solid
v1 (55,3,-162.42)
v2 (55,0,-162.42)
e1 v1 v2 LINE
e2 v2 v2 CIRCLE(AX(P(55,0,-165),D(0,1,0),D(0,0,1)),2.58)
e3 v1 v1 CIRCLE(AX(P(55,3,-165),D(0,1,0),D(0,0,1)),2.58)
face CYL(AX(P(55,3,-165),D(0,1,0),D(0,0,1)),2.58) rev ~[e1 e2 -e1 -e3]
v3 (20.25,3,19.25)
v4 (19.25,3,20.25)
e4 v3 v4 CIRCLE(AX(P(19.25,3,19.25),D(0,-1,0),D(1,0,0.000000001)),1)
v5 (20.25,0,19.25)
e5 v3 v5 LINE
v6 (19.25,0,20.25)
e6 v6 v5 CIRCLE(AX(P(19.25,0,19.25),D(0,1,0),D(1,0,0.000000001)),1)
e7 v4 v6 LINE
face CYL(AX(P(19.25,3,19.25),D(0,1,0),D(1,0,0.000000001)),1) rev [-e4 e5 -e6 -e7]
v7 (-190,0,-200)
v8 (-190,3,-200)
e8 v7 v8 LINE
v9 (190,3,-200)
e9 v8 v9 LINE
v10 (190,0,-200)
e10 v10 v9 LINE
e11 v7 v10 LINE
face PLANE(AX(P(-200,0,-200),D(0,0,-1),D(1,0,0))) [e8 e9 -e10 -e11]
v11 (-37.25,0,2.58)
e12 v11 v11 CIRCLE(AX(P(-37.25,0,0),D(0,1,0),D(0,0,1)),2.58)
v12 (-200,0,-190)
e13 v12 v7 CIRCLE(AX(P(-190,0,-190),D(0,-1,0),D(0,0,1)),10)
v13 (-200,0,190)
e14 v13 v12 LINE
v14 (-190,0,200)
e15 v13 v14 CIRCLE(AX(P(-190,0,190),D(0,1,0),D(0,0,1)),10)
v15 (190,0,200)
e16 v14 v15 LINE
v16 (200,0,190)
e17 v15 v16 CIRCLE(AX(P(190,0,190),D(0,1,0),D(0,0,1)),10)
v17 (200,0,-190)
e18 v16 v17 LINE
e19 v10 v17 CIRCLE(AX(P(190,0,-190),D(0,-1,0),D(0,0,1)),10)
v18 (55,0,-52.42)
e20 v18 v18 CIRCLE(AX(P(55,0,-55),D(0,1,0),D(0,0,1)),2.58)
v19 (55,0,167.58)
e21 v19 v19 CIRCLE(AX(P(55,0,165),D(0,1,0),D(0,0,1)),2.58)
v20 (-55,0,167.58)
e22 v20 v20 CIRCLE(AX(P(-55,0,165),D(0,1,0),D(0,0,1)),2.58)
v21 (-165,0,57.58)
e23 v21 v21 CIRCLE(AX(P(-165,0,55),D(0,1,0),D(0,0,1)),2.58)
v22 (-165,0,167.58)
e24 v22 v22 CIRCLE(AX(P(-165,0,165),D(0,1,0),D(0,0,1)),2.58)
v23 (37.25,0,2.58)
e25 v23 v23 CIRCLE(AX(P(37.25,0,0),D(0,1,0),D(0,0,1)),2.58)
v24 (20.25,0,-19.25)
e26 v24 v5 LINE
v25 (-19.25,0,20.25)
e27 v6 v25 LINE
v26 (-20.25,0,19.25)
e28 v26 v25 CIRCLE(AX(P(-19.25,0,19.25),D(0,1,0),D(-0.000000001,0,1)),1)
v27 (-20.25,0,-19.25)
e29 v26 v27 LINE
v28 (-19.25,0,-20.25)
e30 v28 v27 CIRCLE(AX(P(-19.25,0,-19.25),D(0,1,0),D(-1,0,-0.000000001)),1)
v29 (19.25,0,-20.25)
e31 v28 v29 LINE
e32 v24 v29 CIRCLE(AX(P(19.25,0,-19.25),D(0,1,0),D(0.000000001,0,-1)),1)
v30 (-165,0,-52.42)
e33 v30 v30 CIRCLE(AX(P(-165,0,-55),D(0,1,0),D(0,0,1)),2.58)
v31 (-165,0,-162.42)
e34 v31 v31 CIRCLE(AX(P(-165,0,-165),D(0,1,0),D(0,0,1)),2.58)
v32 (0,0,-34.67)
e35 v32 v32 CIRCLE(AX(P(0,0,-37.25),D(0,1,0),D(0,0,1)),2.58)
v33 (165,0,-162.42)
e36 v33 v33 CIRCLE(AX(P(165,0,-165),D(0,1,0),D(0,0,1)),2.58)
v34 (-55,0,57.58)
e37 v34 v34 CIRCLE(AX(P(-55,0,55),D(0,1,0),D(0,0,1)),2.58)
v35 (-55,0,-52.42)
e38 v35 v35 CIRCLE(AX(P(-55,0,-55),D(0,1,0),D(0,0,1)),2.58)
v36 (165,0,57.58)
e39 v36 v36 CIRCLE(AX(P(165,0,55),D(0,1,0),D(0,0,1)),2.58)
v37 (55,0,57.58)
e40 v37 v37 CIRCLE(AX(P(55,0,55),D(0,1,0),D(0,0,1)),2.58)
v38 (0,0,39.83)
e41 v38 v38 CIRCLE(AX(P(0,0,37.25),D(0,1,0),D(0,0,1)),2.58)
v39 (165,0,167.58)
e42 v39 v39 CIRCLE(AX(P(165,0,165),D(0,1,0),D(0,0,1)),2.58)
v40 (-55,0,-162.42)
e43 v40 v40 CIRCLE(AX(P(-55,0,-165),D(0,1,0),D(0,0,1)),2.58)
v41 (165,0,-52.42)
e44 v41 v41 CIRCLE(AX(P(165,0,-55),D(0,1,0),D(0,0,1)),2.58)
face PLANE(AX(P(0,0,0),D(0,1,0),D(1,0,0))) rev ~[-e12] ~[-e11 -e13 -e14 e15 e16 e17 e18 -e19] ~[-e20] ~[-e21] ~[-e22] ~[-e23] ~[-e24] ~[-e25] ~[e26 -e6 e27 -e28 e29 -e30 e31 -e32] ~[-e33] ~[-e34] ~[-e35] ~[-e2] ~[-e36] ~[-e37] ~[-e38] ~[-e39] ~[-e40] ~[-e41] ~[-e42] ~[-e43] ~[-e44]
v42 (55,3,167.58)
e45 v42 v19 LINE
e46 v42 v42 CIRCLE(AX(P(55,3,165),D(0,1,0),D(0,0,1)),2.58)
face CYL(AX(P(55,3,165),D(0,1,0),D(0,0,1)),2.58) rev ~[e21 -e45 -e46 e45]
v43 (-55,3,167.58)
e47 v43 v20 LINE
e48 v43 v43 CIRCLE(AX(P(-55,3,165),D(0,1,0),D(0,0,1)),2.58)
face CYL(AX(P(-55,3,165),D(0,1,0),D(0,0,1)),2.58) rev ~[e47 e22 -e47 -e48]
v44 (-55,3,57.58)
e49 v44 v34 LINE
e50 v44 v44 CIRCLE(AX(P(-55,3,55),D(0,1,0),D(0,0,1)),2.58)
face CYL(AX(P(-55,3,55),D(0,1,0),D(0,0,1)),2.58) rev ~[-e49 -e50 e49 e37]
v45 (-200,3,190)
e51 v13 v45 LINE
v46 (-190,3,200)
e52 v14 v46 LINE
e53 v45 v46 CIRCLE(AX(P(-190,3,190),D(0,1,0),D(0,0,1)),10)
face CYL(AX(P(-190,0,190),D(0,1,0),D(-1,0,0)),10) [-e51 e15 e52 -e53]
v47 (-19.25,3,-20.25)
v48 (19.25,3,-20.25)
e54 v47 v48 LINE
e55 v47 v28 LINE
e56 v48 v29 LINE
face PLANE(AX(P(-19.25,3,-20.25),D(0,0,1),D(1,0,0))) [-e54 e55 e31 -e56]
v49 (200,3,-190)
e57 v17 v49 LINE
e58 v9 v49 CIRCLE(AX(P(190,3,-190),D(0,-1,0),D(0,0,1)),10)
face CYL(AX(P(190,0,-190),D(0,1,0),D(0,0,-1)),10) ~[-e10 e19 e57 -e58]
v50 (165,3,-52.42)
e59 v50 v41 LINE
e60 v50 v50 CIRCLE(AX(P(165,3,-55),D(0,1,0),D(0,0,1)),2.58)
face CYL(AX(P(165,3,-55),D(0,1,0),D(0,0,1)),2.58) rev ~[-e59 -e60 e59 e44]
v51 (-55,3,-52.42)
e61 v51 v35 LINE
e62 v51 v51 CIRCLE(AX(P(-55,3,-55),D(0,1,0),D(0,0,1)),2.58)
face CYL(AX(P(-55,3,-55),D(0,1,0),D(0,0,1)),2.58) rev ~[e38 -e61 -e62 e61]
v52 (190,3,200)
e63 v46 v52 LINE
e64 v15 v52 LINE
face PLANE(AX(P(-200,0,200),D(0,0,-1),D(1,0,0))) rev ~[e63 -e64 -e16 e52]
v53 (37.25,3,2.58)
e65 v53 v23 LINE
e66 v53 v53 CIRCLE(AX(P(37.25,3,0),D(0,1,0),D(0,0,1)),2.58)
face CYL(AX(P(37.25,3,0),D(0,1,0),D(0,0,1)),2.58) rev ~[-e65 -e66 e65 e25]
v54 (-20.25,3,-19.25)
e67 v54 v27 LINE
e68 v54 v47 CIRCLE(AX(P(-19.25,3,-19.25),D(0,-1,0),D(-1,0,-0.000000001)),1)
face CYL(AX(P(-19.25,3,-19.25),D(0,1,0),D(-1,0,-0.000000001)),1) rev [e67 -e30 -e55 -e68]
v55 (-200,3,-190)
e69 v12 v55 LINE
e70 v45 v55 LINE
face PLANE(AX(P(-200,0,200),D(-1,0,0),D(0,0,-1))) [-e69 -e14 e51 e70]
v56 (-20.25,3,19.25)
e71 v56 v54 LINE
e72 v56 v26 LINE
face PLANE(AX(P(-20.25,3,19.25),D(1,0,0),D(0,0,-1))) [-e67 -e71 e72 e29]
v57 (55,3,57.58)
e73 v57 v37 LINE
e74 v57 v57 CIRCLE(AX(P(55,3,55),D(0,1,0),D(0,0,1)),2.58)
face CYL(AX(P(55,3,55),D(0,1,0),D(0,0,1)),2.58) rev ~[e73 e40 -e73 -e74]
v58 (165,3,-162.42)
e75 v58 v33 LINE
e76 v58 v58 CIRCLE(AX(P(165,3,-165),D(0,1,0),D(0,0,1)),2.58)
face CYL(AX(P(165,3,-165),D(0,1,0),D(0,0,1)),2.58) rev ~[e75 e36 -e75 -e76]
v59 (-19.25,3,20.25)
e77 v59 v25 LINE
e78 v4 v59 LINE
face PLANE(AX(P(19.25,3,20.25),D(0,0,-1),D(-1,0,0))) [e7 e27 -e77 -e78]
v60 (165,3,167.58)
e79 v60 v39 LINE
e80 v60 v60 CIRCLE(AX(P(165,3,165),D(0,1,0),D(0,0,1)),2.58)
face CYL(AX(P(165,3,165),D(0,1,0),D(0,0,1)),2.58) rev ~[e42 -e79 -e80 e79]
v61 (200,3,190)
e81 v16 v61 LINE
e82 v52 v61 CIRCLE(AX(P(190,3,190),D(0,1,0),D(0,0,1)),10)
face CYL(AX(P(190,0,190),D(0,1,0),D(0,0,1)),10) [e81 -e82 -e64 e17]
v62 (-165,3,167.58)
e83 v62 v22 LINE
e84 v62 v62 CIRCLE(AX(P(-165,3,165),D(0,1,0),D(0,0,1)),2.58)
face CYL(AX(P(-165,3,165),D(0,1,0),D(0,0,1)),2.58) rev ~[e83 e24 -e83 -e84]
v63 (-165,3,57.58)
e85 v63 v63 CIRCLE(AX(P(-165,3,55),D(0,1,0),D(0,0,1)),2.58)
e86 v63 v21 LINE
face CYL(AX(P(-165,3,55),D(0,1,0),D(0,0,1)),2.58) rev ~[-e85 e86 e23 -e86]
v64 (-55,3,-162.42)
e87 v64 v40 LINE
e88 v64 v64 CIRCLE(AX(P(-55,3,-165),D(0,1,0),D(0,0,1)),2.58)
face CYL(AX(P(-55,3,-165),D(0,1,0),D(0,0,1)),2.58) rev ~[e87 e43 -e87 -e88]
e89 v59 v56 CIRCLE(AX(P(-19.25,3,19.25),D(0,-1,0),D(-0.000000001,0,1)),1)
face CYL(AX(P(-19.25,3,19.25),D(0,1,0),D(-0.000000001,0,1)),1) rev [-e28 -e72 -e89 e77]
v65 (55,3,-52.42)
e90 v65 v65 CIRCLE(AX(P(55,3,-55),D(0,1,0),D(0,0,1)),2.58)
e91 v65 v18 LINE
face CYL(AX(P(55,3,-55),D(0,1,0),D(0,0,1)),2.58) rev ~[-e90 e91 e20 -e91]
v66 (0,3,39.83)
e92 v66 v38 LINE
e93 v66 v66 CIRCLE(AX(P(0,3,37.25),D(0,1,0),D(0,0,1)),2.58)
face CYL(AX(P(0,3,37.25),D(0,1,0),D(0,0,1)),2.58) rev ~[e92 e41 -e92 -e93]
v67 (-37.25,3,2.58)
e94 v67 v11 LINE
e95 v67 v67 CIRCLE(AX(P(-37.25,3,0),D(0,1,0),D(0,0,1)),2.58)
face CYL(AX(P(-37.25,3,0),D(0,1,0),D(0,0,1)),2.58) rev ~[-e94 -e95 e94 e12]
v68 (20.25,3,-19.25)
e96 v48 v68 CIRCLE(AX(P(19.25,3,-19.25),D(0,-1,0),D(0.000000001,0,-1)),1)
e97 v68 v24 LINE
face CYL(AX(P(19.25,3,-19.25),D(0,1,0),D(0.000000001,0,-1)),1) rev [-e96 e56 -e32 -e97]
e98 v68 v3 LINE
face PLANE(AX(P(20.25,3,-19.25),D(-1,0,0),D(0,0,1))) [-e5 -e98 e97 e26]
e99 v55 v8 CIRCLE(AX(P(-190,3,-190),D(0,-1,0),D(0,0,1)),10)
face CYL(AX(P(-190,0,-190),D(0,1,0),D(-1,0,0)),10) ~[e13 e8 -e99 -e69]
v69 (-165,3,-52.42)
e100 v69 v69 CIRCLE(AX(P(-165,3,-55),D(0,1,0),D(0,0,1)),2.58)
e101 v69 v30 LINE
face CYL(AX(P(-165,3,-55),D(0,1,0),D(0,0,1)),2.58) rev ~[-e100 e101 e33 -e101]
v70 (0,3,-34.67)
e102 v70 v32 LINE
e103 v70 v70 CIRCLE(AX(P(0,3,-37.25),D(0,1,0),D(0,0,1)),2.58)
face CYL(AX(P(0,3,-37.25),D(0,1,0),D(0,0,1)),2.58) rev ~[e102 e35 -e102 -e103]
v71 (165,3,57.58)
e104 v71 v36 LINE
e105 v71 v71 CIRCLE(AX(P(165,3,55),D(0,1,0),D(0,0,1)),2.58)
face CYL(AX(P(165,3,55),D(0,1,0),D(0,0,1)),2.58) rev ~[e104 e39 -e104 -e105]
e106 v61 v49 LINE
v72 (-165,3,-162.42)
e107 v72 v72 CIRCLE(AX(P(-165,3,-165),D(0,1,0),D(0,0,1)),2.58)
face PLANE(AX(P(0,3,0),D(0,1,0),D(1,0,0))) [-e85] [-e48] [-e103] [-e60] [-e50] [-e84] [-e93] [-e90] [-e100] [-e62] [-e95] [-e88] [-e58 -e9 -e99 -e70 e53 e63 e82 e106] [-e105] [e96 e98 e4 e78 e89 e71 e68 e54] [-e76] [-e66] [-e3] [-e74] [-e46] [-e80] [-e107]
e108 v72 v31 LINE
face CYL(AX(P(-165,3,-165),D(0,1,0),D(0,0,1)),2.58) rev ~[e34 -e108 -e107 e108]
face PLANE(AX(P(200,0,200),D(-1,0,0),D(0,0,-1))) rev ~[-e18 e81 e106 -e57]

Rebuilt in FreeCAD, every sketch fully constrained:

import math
import FreeCAD as App
import Part
import Sketcher

V = App.Vector


def edges_at(feature, points):
    """Names of the edges that pass closest to the given points."""
    edges = feature.Shape.Edges
    near = lambda p: min(range(len(edges)), key=lambda i: edges[i].distToShape(Part.Vertex(*p))[0])
    return sorted({f"Edge{near(p) + 1}" for p in points})


def add_polygon(sketch, points):
    """Adds a closed chain of lines whose ends are joined by coincident constraints."""
    first, n = sketch.GeometryCount, len(points)
    for a, b in zip(points, points[1:] + points[:1]):
        sketch.addGeometry(Part.LineSegment(App.Vector(*a, 0), App.Vector(*b, 0)), False)
    for i in range(n):
        sketch.addConstraint(Sketcher.Constraint("Coincident", first + i, 2, first + (i + 1) % n, 1))

doc = App.newDocument("Part")
body = doc.addObject("PartDesign::Body", "Body")

# Sketch on XZ plane
sketch1 = doc.addObject("Sketcher::SketchObject", "Sketch")
body.addObject(sketch1)
sketch1.AttachmentSupport = (doc.XZ_Plane, [""])
sketch1.MapMode = "FlatFace"
add_polygon(sketch1, [(-200, -200), (-200, 200), (200, 200), (200, -200)])  # lines 0-3
sketch1.addConstraint(Sketcher.Constraint("Vertical", 0))
sketch1.addConstraint(Sketcher.Constraint("Horizontal", 1))
sketch1.addConstraint(Sketcher.Constraint("Vertical", 2))
sketch1.addConstraint(Sketcher.Constraint("Horizontal", 3))
sketch1.addConstraint(Sketcher.Constraint("Symmetric", 0, 2, 2, 2, -1, 1))
sketch1.addConstraint(Sketcher.Constraint("Equal", 3, 0))
sketch1.addConstraint(Sketcher.Constraint("DistanceX", 1, 1, 1, 2, 400.0))
pad1 = doc.addObject("PartDesign::Pad", "Pad")
body.addObject(pad1)
pad1.Profile = sketch1
pad1.Length = 3
pad1.Reversed = True

# Sketch on XZ plane
sketch2 = doc.addObject("Sketcher::SketchObject", "Sketch001")
body.addObject(sketch2)
sketch2.AttachmentSupport = (doc.XZ_Plane, [""])
sketch2.MapMode = "FlatFace"
sketch2.AttachmentOffset = App.Placement(V(0, 0, -3), App.Rotation())
sketch2.addGeometry(Part.LineSegment(V(19.2, -20.2, 0), V(-19.2, -20.2, 0)), False)
sketch2.addGeometry(Part.ArcOfCircle(Part.Circle(V(-19.2, -19.2, 0), V(0, 0, 1), 1), math.radians(-180), math.radians(-90)), False)
sketch2.addGeometry(Part.LineSegment(V(-20.2, -19.2, 0), V(-20.2, 19.2, 0)), False)
sketch2.addGeometry(Part.ArcOfCircle(Part.Circle(V(-19.2, 19.2, 0), V(0, 0, 1), 1), math.radians(90), math.radians(180)), False)
sketch2.addGeometry(Part.LineSegment(V(-19.2, 20.2, 0), V(19.2, 20.2, 0)), False)
sketch2.addGeometry(Part.ArcOfCircle(Part.Circle(V(19.2, 19.2, 0), V(0, 0, 1), 1), math.radians(0), math.radians(90)), False)
sketch2.addGeometry(Part.LineSegment(V(20.2, 19.2, 0), V(20.2, -19.2, 0)), False)
sketch2.addGeometry(Part.ArcOfCircle(Part.Circle(V(19.2, -19.2, 0), V(0, 0, 1), 1), math.radians(-90), math.radians(0)), False)
sketch2.addConstraint(Sketcher.Constraint("Tangent", 0, 2, 1, 2))
sketch2.addConstraint(Sketcher.Constraint("Tangent", 1, 1, 2, 1))
sketch2.addConstraint(Sketcher.Constraint("Tangent", 2, 2, 3, 2))
sketch2.addConstraint(Sketcher.Constraint("Tangent", 3, 1, 4, 1))
sketch2.addConstraint(Sketcher.Constraint("Tangent", 4, 2, 5, 2))
sketch2.addConstraint(Sketcher.Constraint("Tangent", 5, 1, 6, 1))
sketch2.addConstraint(Sketcher.Constraint("Tangent", 6, 2, 7, 2))
sketch2.addConstraint(Sketcher.Constraint("Tangent", 7, 1, 0, 1))
sketch2.addConstraint(Sketcher.Constraint("Horizontal", 0))
sketch2.addConstraint(Sketcher.Constraint("Vertical", 2))
sketch2.addConstraint(Sketcher.Constraint("Horizontal", 4))
sketch2.addConstraint(Sketcher.Constraint("Vertical", 6))
sketch2.addConstraint(Sketcher.Constraint("Equal", 1, 3))
sketch2.addConstraint(Sketcher.Constraint("Equal", 3, 5))
sketch2.addConstraint(Sketcher.Constraint("Equal", 5, 7))
sketch2.addConstraint(Sketcher.Constraint("Symmetric", 1, 3, 5, 3, -1, 1))
sketch2.addConstraint(Sketcher.Constraint("Equal", 4, 2))
sketch2.addConstraint(Sketcher.Constraint("Radius", 1, 1.0))
sketch2.addConstraint(Sketcher.Constraint("DistanceX", 0, 2, 0, 1, 38.5))
pocket1 = doc.addObject("PartDesign::Pocket", "Pocket")
body.addObject(pocket1)
pocket1.Profile = sketch2
pocket1.Type = "ThroughAll"
pocket1.Reversed = True

# Sketch on XZ plane
sketch3 = doc.addObject("Sketcher::SketchObject", "Sketch002")
body.addObject(sketch3)
sketch3.AttachmentSupport = (doc.XZ_Plane, [""])
sketch3.MapMode = "FlatFace"
sketch3.AttachmentOffset = App.Placement(V(0, 0, -3), App.Rotation())
sketch3.addGeometry(Part.Circle(V(-37.2, 0, 0), V(0, 0, 1), 2.6), False)
sketch3.addGeometry(Part.Circle(V(0, -37.2, 0), V(0, 0, 1), 2.6), False)
sketch3.addGeometry(Part.Circle(V(37.2, 0, 0), V(0, 0, 1), 2.6), False)
sketch3.addGeometry(Part.Circle(V(0, 37.2, 0), V(0, 0, 1), 2.6), False)
sketch3.addConstraint(Sketcher.Constraint("Equal", 0, 1))
sketch3.addConstraint(Sketcher.Constraint("Equal", 1, 2))
sketch3.addConstraint(Sketcher.Constraint("Equal", 2, 3))
sketch3.addConstraint(Sketcher.Constraint("Symmetric", 0, 3, 2, 3, -1, 1))
sketch3.addConstraint(Sketcher.Constraint("Symmetric", 1, 3, 3, 3, -1, 1))
sketch3.addConstraint(Sketcher.Constraint("PointOnObject", 0, 3, -1))
sketch3.addConstraint(Sketcher.Constraint("PointOnObject", 1, 3, -2))
sketch3.addConstraint(Sketcher.Constraint("Diameter", 0, 5.16))
sketch3.addConstraint(Sketcher.Constraint("DistanceX", 0, 3, 2, 3, 74.5))
sketch3.addConstraint(Sketcher.Constraint("DistanceY", 1, 3, 3, 3, 74.5))
pocket2 = doc.addObject("PartDesign::Pocket", "Pocket001")
body.addObject(pocket2)
pocket2.Profile = sketch3
pocket2.Type = "ThroughAll"
pocket2.Reversed = True

# Sketch on XZ plane
sketch4 = doc.addObject("Sketcher::SketchObject", "Sketch003")
body.addObject(sketch4)
sketch4.AttachmentSupport = (doc.XZ_Plane, [""])
sketch4.MapMode = "FlatFace"
sketch4.AttachmentOffset = App.Placement(V(0, 0, -3), App.Rotation())
sketch4.addGeometry(Part.Circle(V(-165, -165, 0), V(0, 0, 1), 2.6), False)
sketch4.addGeometry(Part.Circle(V(-55, -165, 0), V(0, 0, 1), 2.6), False)
sketch4.addGeometry(Part.Circle(V(55, -165, 0), V(0, 0, 1), 2.6), False)
sketch4.addGeometry(Part.Circle(V(165, -165, 0), V(0, 0, 1), 2.6), False)
sketch4.addGeometry(Part.Circle(V(-55, -55, 0), V(0, 0, 1), 2.6), False)
sketch4.addGeometry(Part.Circle(V(55, -55, 0), V(0, 0, 1), 2.6), False)
sketch4.addGeometry(Part.Circle(V(165, -55, 0), V(0, 0, 1), 2.6), False)
sketch4.addGeometry(Part.Circle(V(-55, 55, 0), V(0, 0, 1), 2.6), False)
sketch4.addGeometry(Part.Circle(V(55, 55, 0), V(0, 0, 1), 2.6), False)
sketch4.addGeometry(Part.Circle(V(165, 55, 0), V(0, 0, 1), 2.6), False)
sketch4.addGeometry(Part.Circle(V(-55, 165, 0), V(0, 0, 1), 2.6), False)
sketch4.addGeometry(Part.Circle(V(55, 165, 0), V(0, 0, 1), 2.6), False)
sketch4.addGeometry(Part.Circle(V(165, 165, 0), V(0, 0, 1), 2.6), False)
sketch4.addGeometry(Part.Circle(V(-165, -55, 0), V(0, 0, 1), 2.6), False)
sketch4.addGeometry(Part.Circle(V(-165, 55, 0), V(0, 0, 1), 2.6), False)
sketch4.addGeometry(Part.Circle(V(-165, 165, 0), V(0, 0, 1), 2.6), False)
sketch4.addConstraint(Sketcher.Constraint("Equal", 0, 1))
sketch4.addConstraint(Sketcher.Constraint("Equal", 1, 2))
sketch4.addConstraint(Sketcher.Constraint("Equal", 2, 3))
sketch4.addConstraint(Sketcher.Constraint("Equal", 3, 4))
sketch4.addConstraint(Sketcher.Constraint("Equal", 4, 5))
sketch4.addConstraint(Sketcher.Constraint("Equal", 5, 6))
sketch4.addConstraint(Sketcher.Constraint("Equal", 6, 7))
sketch4.addConstraint(Sketcher.Constraint("Equal", 7, 8))
sketch4.addConstraint(Sketcher.Constraint("Equal", 8, 9))
sketch4.addConstraint(Sketcher.Constraint("Equal", 9, 10))
sketch4.addConstraint(Sketcher.Constraint("Equal", 10, 11))
sketch4.addConstraint(Sketcher.Constraint("Equal", 11, 12))
sketch4.addConstraint(Sketcher.Constraint("Equal", 12, 13))
sketch4.addConstraint(Sketcher.Constraint("Equal", 13, 14))
sketch4.addConstraint(Sketcher.Constraint("Equal", 14, 15))
sketch4.addConstraint(Sketcher.Constraint("Symmetric", 5, 3, 7, 3, -1, 1))
sketch4.addConstraint(Sketcher.Constraint("Symmetric", 4, 3, 8, 3, -1, 1))
sketch4.addConstraint(Sketcher.Constraint("Symmetric", 2, 3, 10, 3, -1, 1))
sketch4.addConstraint(Sketcher.Constraint("Symmetric", 1, 3, 11, 3, -1, 1))
sketch4.addConstraint(Sketcher.Constraint("Symmetric", 0, 3, 12, 3, -1, 1))
sketch4.addConstraint(Sketcher.Constraint("Symmetric", 9, 3, 13, 3, -1, 1))
sketch4.addConstraint(Sketcher.Constraint("Symmetric", 6, 3, 14, 3, -1, 1))
sketch4.addConstraint(Sketcher.Constraint("Symmetric", 3, 3, 15, 3, -1, 1))
sketch4.addConstraint(Sketcher.Constraint("Symmetric", 1, 3, 2, 3, -2))
sketch4.addConstraint(Sketcher.Constraint("Symmetric", 0, 3, 3, 3, -2))
sketch4.addConstraint(Sketcher.Constraint("Symmetric", 4, 3, 5, 3, -2))
sketch4.addConstraint(Sketcher.Constraint("Symmetric", 6, 3, 13, 3, -2))
sketch4.addConstraint(Sketcher.Constraint("Horizontal", 0, 3, 1, 3))
sketch4.addConstraint(Sketcher.Constraint("Horizontal", 5, 3, 6, 3))
sketch4.addConstraint(Sketcher.Constraint("Vertical", 1, 3, 4, 3))
sketch4.addConstraint(Sketcher.Constraint("Vertical", 3, 3, 6, 3))
sketch4.addConstraint(Sketcher.Constraint("Diameter", 0, 5.16))
sketch4.addConstraint(Sketcher.Constraint("DistanceX", 0, 3, -1, 1, 165.0))
sketch4.addConstraint(Sketcher.Constraint("DistanceY", 0, 3, -1, 1, 165.0))
sketch4.addConstraint(Sketcher.Constraint("DistanceX", 1, 3, -1, 1, 55.0))
sketch4.addConstraint(Sketcher.Constraint("DistanceY", 4, 3, -1, 1, 55.0))
pocket3 = doc.addObject("PartDesign::Pocket", "Pocket002")
body.addObject(pocket3)
pocket3.Profile = sketch4
pocket3.Type = "ThroughAll"
pocket3.Reversed = True
doc.recompute()

fillet = doc.addObject("PartDesign::Fillet", "Fillet")
body.addObject(fillet)
fillet.Base = (pocket3, edges_at(pocket3, [
    (200, 1.5, 200),
    (-200, 1.5, 200),
    (-200, 1.5, -200),
    (200, 1.5, -200),
]))
fillet.Radius = 10

doc.recompute()
